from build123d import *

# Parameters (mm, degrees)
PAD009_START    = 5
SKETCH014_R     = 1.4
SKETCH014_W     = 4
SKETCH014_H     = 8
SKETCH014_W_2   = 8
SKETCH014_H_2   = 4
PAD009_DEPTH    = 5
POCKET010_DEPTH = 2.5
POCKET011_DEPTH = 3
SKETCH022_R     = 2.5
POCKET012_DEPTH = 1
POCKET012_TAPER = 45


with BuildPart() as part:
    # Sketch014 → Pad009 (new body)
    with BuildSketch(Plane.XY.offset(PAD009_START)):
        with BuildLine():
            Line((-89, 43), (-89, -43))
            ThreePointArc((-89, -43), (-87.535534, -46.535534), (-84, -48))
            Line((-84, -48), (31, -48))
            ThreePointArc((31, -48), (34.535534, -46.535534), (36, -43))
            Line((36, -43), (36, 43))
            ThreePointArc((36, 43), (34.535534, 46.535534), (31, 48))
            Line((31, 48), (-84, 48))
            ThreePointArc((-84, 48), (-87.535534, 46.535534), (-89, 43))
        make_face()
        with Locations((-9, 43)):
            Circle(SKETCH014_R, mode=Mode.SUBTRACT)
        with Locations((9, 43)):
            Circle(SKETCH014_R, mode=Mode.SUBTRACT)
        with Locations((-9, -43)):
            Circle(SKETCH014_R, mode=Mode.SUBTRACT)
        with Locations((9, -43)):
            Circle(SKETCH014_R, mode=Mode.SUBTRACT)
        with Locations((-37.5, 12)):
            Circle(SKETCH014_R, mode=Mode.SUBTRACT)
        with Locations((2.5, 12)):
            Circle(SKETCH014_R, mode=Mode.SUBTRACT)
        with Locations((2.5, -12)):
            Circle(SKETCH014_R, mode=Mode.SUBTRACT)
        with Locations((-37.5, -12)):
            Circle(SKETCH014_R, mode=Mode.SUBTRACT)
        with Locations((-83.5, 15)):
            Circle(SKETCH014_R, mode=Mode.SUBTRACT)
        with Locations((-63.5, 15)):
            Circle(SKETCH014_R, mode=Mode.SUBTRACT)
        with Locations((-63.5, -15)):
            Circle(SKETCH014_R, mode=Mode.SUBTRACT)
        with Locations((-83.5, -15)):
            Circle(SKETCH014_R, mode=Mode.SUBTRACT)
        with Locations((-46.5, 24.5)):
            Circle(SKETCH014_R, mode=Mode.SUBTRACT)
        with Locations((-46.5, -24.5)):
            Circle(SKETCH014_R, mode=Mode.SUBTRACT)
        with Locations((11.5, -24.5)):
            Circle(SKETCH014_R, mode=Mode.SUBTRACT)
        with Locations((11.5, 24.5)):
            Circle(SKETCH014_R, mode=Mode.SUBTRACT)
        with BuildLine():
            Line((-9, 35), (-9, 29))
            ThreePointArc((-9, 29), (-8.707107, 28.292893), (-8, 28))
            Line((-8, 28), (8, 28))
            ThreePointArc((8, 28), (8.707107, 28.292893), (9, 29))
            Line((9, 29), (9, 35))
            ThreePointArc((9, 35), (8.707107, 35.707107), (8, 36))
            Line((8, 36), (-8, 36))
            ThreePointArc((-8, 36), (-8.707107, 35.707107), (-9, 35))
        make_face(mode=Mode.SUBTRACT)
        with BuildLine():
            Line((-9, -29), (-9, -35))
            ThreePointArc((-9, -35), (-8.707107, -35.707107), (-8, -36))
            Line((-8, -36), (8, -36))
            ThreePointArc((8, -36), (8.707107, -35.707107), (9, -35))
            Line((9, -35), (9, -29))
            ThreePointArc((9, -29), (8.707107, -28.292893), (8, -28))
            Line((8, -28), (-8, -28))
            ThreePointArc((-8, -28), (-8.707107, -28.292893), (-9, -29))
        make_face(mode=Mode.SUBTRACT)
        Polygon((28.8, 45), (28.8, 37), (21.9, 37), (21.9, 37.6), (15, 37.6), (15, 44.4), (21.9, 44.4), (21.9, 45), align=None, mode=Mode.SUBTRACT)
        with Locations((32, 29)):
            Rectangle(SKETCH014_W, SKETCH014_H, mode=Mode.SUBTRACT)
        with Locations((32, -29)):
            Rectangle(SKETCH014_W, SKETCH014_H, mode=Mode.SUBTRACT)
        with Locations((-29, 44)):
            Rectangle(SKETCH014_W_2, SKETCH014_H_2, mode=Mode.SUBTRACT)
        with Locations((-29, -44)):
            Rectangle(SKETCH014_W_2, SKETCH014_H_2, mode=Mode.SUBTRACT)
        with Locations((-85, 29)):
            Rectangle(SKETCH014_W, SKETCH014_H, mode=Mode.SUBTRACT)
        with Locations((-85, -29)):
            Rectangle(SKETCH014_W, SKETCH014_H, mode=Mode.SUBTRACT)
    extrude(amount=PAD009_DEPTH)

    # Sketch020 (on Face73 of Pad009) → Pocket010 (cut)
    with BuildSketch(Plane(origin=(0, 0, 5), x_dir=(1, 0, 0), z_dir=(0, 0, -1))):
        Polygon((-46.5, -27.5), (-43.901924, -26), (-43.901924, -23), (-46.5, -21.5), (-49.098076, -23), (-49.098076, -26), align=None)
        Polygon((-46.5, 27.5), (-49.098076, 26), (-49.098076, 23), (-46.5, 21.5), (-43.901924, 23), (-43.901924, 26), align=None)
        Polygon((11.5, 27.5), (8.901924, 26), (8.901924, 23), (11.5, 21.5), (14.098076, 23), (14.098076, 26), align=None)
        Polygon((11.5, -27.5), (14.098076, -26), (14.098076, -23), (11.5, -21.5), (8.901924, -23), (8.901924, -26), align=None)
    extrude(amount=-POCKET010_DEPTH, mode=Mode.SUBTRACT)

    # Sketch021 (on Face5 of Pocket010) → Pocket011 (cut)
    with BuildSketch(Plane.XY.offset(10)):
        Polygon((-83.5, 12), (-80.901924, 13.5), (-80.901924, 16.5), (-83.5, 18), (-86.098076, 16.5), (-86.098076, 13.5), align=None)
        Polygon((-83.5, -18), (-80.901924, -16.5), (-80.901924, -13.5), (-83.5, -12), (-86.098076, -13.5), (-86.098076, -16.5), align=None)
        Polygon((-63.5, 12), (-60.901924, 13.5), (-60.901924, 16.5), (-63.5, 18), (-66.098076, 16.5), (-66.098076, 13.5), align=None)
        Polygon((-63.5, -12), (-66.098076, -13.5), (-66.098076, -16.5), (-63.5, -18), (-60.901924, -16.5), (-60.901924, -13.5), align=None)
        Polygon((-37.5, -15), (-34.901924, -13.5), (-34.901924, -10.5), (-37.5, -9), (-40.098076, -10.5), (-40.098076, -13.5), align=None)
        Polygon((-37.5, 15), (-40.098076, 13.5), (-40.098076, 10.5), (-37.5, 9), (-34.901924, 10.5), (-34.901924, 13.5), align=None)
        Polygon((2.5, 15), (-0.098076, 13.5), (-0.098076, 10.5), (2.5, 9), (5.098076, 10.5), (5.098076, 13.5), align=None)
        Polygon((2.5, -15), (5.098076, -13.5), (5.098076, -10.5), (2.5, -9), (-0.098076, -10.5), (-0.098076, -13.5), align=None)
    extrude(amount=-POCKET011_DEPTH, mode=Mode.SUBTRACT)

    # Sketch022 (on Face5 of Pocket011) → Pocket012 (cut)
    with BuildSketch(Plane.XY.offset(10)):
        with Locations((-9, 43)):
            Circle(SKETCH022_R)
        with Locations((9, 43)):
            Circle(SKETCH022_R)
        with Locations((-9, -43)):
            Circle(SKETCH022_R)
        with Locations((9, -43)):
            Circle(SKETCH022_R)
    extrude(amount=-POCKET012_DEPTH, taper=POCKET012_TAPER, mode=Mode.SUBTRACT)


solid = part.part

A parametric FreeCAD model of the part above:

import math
import FreeCAD as App
import Part
import Sketcher
Q = App.Units.Quantity


def add_polygon(sketch, points):
    """Adds a closed chain of lines whose ends are joined by coincident constraints."""
    first, n = sketch.GeometryCount, len(points)
    for a, b in zip(points, points[1:] + points[:1]):
        sketch.addGeometry(Part.LineSegment(App.Vector(*a, 0), App.Vector(*b, 0)), False)
    for i in range(n):
        sketch.addConstraint(Sketcher.Constraint("Coincident", first + i, 2, first + (i + 1) % n, 1))

doc = App.newDocument("Part")
params = doc.addObject("Spreadsheet::Sheet", "Params")
for row, (alias, value) in enumerate([
    ("sketch1_radius", "5 mm"),
    ("sketch1_radius2", "0.999999 mm"),
    ("sketch1_diameter", "2.8 mm"),
    ("sketch1_width", "115 mm"),
    ("sketch1_width2", "4 mm"),
    ("pad1_length", "5 mm"),
    ("sketch2_height", "3 mm"),
    ("sketch2_length", "3 mm"),
    ("pocket1_length", "2.5 mm"),
    ("sketch3_height", "3 mm"),
    ("sketch3_length", "3 mm"),
    ("pocket2_length", "3 mm"),
    ("sketch4_diameter", "5 mm"),
    ("pocket3_length", "1 mm"),
    ("pocket3_taper", "-45 deg"),
], start=1):
    params.set(f"A{row}", alias)
    params.set(f"B{row}", "=" + value)
    params.setAlias(f"B{row}", alias)

body = doc.addObject("PartDesign::Body", "Body")

# Sketch on XY plane
sketch1 = body.newObject("Sketcher::SketchObject", "Sketch")
sketch1.AttachmentSupport = (doc.getObject("XY_Plane"), [""])
sketch1.MapMode = "FlatFace"
sketch1.AttachmentOffset = App.Placement(App.Vector(0, 0, 5), App.Rotation())
sketch1.addGeometry(Part.LineSegment(App.Vector(-89, 43, 0), App.Vector(-89, -43, 0)), False)  # 0
sketch1.addGeometry(Part.ArcOfCircle(Part.Circle(App.Vector(-84, -43, 0), App.Vector(0, 0, 1), 5), math.radians(180), math.radians(270)), False)  # 1
sketch1.addGeometry(Part.LineSegment(App.Vector(-84, -48, 0), App.Vector(31, -48, 0)), False)  # 2
sketch1.addGeometry(Part.ArcOfCircle(Part.Circle(App.Vector(31, -43, 0), App.Vector(0, 0, 1), 5), math.radians(-90), math.radians(0)), False)  # 3
sketch1.addGeometry(Part.LineSegment(App.Vector(36, -43, 0), App.Vector(36, 43, 0)), False)  # 4
sketch1.addGeometry(Part.ArcOfCircle(Part.Circle(App.Vector(31, 43, 0), App.Vector(0, 0, 1), 5), math.radians(0), math.radians(90)), False)  # 5
sketch1.addGeometry(Part.LineSegment(App.Vector(31, 48, 0), App.Vector(-84, 48, 0)), False)  # 6
sketch1.addGeometry(Part.ArcOfCircle(Part.Circle(App.Vector(-84, 43, 0), App.Vector(0, 0, 1), 5), math.radians(90), math.radians(180)), False)  # 7
add_polygon(sketch1, [(-83, -33), (-87, -33), (-87, -25), (-83, -25)])  # lines 8-11
add_polygon(sketch1, [(-25, -46), (-33, -46), (-33, -42), (-25, -42)])  # lines 12-15
sketch1.addGeometry(Part.Circle(App.Vector(-46.5, -24.5, 0), App.Vector(0, 0, 1), 1.4), False)  # 16
sketch1.addGeometry(Part.Circle(App.Vector(-83.5, -15, 0), App.Vector(0, 0, 1), 1.4), False)  # 17
sketch1.addGeometry(Part.Circle(App.Vector(-63.5, -15, 0), App.Vector(0, 0, 1), 1.4), False)  # 18
sketch1.addGeometry(Part.Circle(App.Vector(-37.5, -12, 0), App.Vector(0, 0, 1), 1.4), False)  # 19
sketch1.addGeometry(Part.Circle(App.Vector(-9, -43, 0), App.Vector(0, 0, 1), 1.4), False)  # 20
sketch1.addGeometry(Part.LineSegment(App.Vector(-9, -35, 0), App.Vector(-9, -29, 0)), False)  # 21
sketch1.addGeometry(Part.ArcOfCircle(Part.Circle(App.Vector(-8, -29, 0), App.Vector(0, 0, 1), 1), math.radians(90), math.radians(180)), False)  # 22
sketch1.addGeometry(Part.LineSegment(App.Vector(-8, -28, 0), App.Vector(8, -28, 0)), False)  # 23
sketch1.addGeometry(Part.ArcOfCircle(Part.Circle(App.Vector(8, -29, 0), App.Vector(0, 0, 1), 1), math.radians(0), math.radians(90)), False)  # 24
sketch1.addGeometry(Part.LineSegment(App.Vector(9, -29, 0), App.Vector(9, -35, 0)), False)  # 25
sketch1.addGeometry(Part.ArcOfCircle(Part.Circle(App.Vector(8, -35, 0), App.Vector(0, 0, 1), 1), math.radians(-90), math.radians(0)), False)  # 26
sketch1.addGeometry(Part.LineSegment(App.Vector(8, -36, 0), App.Vector(-8, -36, 0)), False)  # 27
sketch1.addGeometry(Part.ArcOfCircle(Part.Circle(App.Vector(-8, -35, 0), App.Vector(0, 0, 1), 1), math.radians(180), math.radians(270)), False)  # 28
sketch1.addGeometry(Part.Circle(App.Vector(9, -43, 0), App.Vector(0, 0, 1), 1.4), False)  # 29
sketch1.addGeometry(Part.Circle(App.Vector(11.5, -24.5, 0), App.Vector(0, 0, 1), 1.4), False)  # 30
add_polygon(sketch1, [(34, -33), (30, -33), (30, -25), (34, -25)])  # lines 31-34
sketch1.addGeometry(Part.Circle(App.Vector(2.5, -12, 0), App.Vector(0, 0, 1), 1.4), False)  # 35
sketch1.addGeometry(Part.Circle(App.Vector(-83.5, 15, 0), App.Vector(0, 0, 1), 1.4), False)  # 36
sketch1.addGeometry(Part.Circle(App.Vector(-63.5, 15, 0), App.Vector(0, 0, 1), 1.4), False)  # 37
sketch1.addGeometry(Part.Circle(App.Vector(-37.5, 12, 0), App.Vector(0, 0, 1), 1.4), False)  # 38
add_polygon(sketch1, [(-83, 25), (-87, 25), (-87, 33), (-83, 33)])  # lines 39-42
sketch1.addGeometry(Part.Circle(App.Vector(-46.5, 24.5, 0), App.Vector(0, 0, 1), 1.4), False)  # 43
add_polygon(sketch1, [(-25, 42), (-33, 42), (-33, 46), (-25, 46)])  # lines 44-47
sketch1.addGeometry(Part.Circle(App.Vector(2.5, 12, 0), App.Vector(0, 0, 1), 1.4), False)  # 48
sketch1.addGeometry(Part.LineSegment(App.Vector(-9, 29, 0), App.Vector(-9, 35, 0)), False)  # 49
sketch1.addGeometry(Part.ArcOfCircle(Part.Circle(App.Vector(-8, 35, 0), App.Vector(0, 0, 1), 1), math.radians(90), math.radians(180)), False)  # 50
sketch1.addGeometry(Part.LineSegment(App.Vector(-8, 36, 0), App.Vector(8, 36, 0)), False)  # 51
sketch1.addGeometry(Part.ArcOfCircle(Part.Circle(App.Vector(8, 35, 0), App.Vector(0, 0, 1), 1), math.radians(0), math.radians(90)), False)  # 52
sketch1.addGeometry(Part.LineSegment(App.Vector(9, 35, 0), App.Vector(9, 29, 0)), False)  # 53
sketch1.addGeometry(Part.ArcOfCircle(Part.Circle(App.Vector(8, 29, 0), App.Vector(0, 0, 1), 1), math.radians(-90), math.radians(0)), False)  # 54
sketch1.addGeometry(Part.LineSegment(App.Vector(8, 28, 0), App.Vector(-8, 28, 0)), False)  # 55
sketch1.addGeometry(Part.ArcOfCircle(Part.Circle(App.Vector(-8, 29, 0), App.Vector(0, 0, 1), 1), math.radians(180), math.radians(270)), False)  # 56
sketch1.addGeometry(Part.Circle(App.Vector(-9, 43, 0), App.Vector(0, 0, 1), 1.4), False)  # 57
sketch1.addGeometry(Part.Circle(App.Vector(11.5, 24.5, 0), App.Vector(0, 0, 1), 1.4), False)  # 58
add_polygon(sketch1, [(34, 25), (30, 25), (30, 33), (34, 33)])  # lines 59-62
sketch1.addGeometry(Part.Circle(App.Vector(9, 43, 0), App.Vector(0, 0, 1), 1.4), False)  # 63
add_polygon(sketch1, [(21.9, 45), (28.8, 45), (28.8, 37), (21.9, 37), (21.9, 37.6), (15, 37.6), (15, 44.4), (21.9, 44.4)])  # lines 64-71
sketch1.addConstraint([
    Sketcher.Constraint("Tangent", 0, 2, 1, 1),
    Sketcher.Constraint("Tangent", 1, 2, 2, 1),
    Sketcher.Constraint("Tangent", 2, 2, 3, 1),
    Sketcher.Constraint("Tangent", 3, 2, 4, 1),
    Sketcher.Constraint("Tangent", 4, 2, 5, 1),
    Sketcher.Constraint("Tangent", 5, 2, 6, 1),
    Sketcher.Constraint("Tangent", 6, 2, 7, 1),
    Sketcher.Constraint("Tangent", 7, 2, 0, 1),
    Sketcher.Constraint("Tangent", 21, 2, 22, 2),
    Sketcher.Constraint("Tangent", 22, 1, 23, 1),
    Sketcher.Constraint("Tangent", 23, 2, 24, 2),
    Sketcher.Constraint("Tangent", 24, 1, 25, 1),
    Sketcher.Constraint("Tangent", 25, 2, 26, 2),
    Sketcher.Constraint("Tangent", 26, 1, 27, 1),
    Sketcher.Constraint("Tangent", 27, 2, 28, 2),
    Sketcher.Constraint("Tangent", 28, 1, 21, 1),
    Sketcher.Constraint("Tangent", 49, 2, 50, 2),
    Sketcher.Constraint("Tangent", 50, 1, 51, 1),
    Sketcher.Constraint("Tangent", 51, 2, 52, 2),
    Sketcher.Constraint("Tangent", 52, 1, 53, 1),
    Sketcher.Constraint("Tangent", 53, 2, 54, 2),
    Sketcher.Constraint("Tangent", 54, 1, 55, 1),
    Sketcher.Constraint("Tangent", 55, 2, 56, 2),
    Sketcher.Constraint("Tangent", 56, 1, 49, 1),
    Sketcher.Constraint("Vertical", 0),
    Sketcher.Constraint("Horizontal", 2),
    Sketcher.Constraint("Vertical", 4),
    Sketcher.Constraint("Horizontal", 6),
    Sketcher.Constraint("Horizontal", 8),
    Sketcher.Constraint("Vertical", 9),
    Sketcher.Constraint("Horizontal", 10),
    Sketcher.Constraint("Vertical", 11),
    Sketcher.Constraint("Horizontal", 12),
    Sketcher.Constraint("Vertical", 13),
    Sketcher.Constraint("Horizontal", 14),
    Sketcher.Constraint("Vertical", 15),
    Sketcher.Constraint("Vertical", 21),
    Sketcher.Constraint("Horizontal", 23),
    Sketcher.Constraint("Vertical", 25),
    Sketcher.Constraint("Horizontal", 27),
    Sketcher.Constraint("Horizontal", 31),
    Sketcher.Constraint("Vertical", 32),
    Sketcher.Constraint("Horizontal", 33),
    Sketcher.Constraint("Vertical", 34),
    Sketcher.Constraint("Horizontal", 39),
    Sketcher.Constraint("Vertical", 40),
    Sketcher.Constraint("Horizontal", 41),
    Sketcher.Constraint("Vertical", 42),
    Sketcher.Constraint("Horizontal", 44),
    Sketcher.Constraint("Vertical", 45),
    Sketcher.Constraint("Horizontal", 46),
    Sketcher.Constraint("Vertical", 47),
    Sketcher.Constraint("Vertical", 49),
    Sketcher.Constraint("Horizontal", 51),
    Sketcher.Constraint("Vertical", 53),
    Sketcher.Constraint("Horizontal", 55),
    Sketcher.Constraint("Horizontal", 59),
    Sketcher.Constraint("Vertical", 60),
    Sketcher.Constraint("Horizontal", 61),
    Sketcher.Constraint("Vertical", 62),
    Sketcher.Constraint("Horizontal", 64),
    Sketcher.Constraint("Vertical", 65),
    Sketcher.Constraint("Horizontal", 66),
    Sketcher.Constraint("Vertical", 67),
    Sketcher.Constraint("Horizontal", 68),
    Sketcher.Constraint("Vertical", 69),
    Sketcher.Constraint("Horizontal", 70),
    Sketcher.Constraint("Vertical", 71),
    Sketcher.Constraint("Equal", 1, 3),
    Sketcher.Constraint("Equal", 3, 5),
    Sketcher.Constraint("Equal", 5, 7),
    Sketcher.Constraint("Equal", 16, 17),
    Sketcher.Constraint("Equal", 17, 18),
    Sketcher.Constraint("Equal", 18, 19),
    Sketcher.Constraint("Equal", 19, 20),
    Sketcher.Constraint("Equal", 22, 24),
    Sketcher.Constraint("Equal", 24, 26),
    Sketcher.Constraint("Equal", 26, 28),
    Sketcher.Constraint("Equal", 20, 29),
    Sketcher.Constraint("Equal", 29, 30),
    Sketcher.Constraint("Equal", 30, 35),
    Sketcher.Constraint("Equal", 35, 36),
    Sketcher.Constraint("Equal", 36, 37),
    Sketcher.Constraint("Equal", 37, 38),
    Sketcher.Constraint("Equal", 38, 43),
    Sketcher.Constraint("Equal", 43, 48),
    Sketcher.Constraint("Equal", 28, 50),
    Sketcher.Constraint("Equal", 50, 52),
    Sketcher.Constraint("Equal", 52, 54),
    Sketcher.Constraint("Equal", 54, 56),
    Sketcher.Constraint("Equal", 48, 57),
    Sketcher.Constraint("Equal", 57, 58),
    Sketcher.Constraint("Equal", 58, 63),
    Sketcher.Constraint("Symmetric", 26, 3, 50, 3, -1, 1),
    Sketcher.Constraint("Symmetric", 22, 3, 54, 3, -1, 1),
    Sketcher.Constraint("Symmetric", 29, 3, 57, 3, -1, 1),
    Sketcher.Constraint("Symmetric", 20, 3, 63, 3, -1, 1),
    Sketcher.Constraint("Symmetric", 20, 3, 29, 3, -2),
    Sketcher.Constraint("Symmetric", 17, 3, 36, 3, -1),
    Sketcher.Constraint("Symmetric", 18, 3, 37, 3, -1),
    Sketcher.Constraint("Symmetric", 19, 3, 38, 3, -1),
    Sketcher.Constraint("Symmetric", 16, 3, 43, 3, -1),
    Sketcher.Constraint("Symmetric", 35, 3, 48, 3, -1),
    Sketcher.Constraint("Symmetric", 30, 3, 58, 3, -1),
    Sketcher.Constraint("Symmetric", 9, 2, 39, 2, -1),
    Sketcher.Constraint("Symmetric", 11, 2, 41, 2, -1),
    Sketcher.Constraint("Symmetric", 13, 2, 44, 2, -1),
    Sketcher.Constraint("Symmetric", 15, 2, 46, 2, -1),
    Sketcher.Constraint("Symmetric", 32, 2, 59, 2, -1),
    Sketcher.Constraint("Symmetric", 34, 2, 61, 2, -1),
    Sketcher.Constraint("Horizontal", 17, 3, 18, 3),
    Sketcher.Constraint("Horizontal", 3, 3, 20, 3),
    Sketcher.Constraint("Horizontal", 16, 3, 30, 3),
    Sketcher.Constraint("Horizontal", 19, 3, 35, 3),
    Sketcher.Constraint("Horizontal", 7, 3, 57, 3),
    Sketcher.Constraint("Horizontal", 11, 2, 31, 2),
    Sketcher.Constraint("Horizontal", 10, 2, 32, 2),
    Sketcher.Constraint("Vertical", 28, 3, 50, 3),
    Sketcher.Constraint("Vertical", 57, 3, 21, 2),
    Sketcher.Constraint("Vertical", 67, 2, 70, 2),
    Sketcher.Constraint("Equal", 10, 31),
    Sketcher.Constraint("Equal", 66, 68),
    Sketcher.Constraint("Equal", 46, 9),
    Sketcher.Constraint("Equal", 61, 13),
    Sketcher.Constraint("Equal", 62, 65),
    Sketcher.Constraint("Equal", 67, 71),
    Sketcher.Constraint("Radius", 1, Q("5 mm")),
    Sketcher.Constraint("Radius", 22, Q("0.999999 mm")),
    Sketcher.Constraint("Diameter", 16, Q("2.8 mm")),
    Sketcher.Constraint("DistanceX", 2, 1, 2, 2, Q("115 mm")),
    Sketcher.Constraint("DistanceX", 8, 2, 8, 1, Q("4 mm")),
    Sketcher.Constraint("DistanceX", 12, 2, 12, 1, Q("8 mm")),
    Sketcher.Constraint("DistanceX", 23, 1, 23, 2, Q("16 mm")),
    Sketcher.Constraint("DistanceY", 0, 2, 0, 1, Q("86 mm")),
    Sketcher.Constraint("DistanceY", 21, 1, 21, 2, Q("6 mm")),
    Sketcher.Constraint("DistanceX", 64, 1, 64, 2, Q("6.9 mm")),
    Sketcher.Constraint("DistanceY", 67, 1, 67, 2, Q("0.6 mm")),
    Sketcher.Constraint("DistanceX", 1, 3, -1, 1, Q("84 mm")),
    Sketcher.Constraint("DistanceY", 17, 3, -1, 1, Q("15 mm")),
    Sketcher.Constraint("DistanceY", 19, 3, -1, 1, Q("12 mm")),
    Sketcher.Constraint("DistanceY", 22, 3, -1, 1, Q("28.999999 mm")),
    Sketcher.Constraint("DistanceX", 8, 2, -1, 1, Q("87 mm")),
    Sketcher.Constraint("DistanceY", 8, 2, -1, 1, Q("33 mm")),
    Sketcher.Constraint("DistanceX", 12, 2, -1, 1, Q("33 mm")),
    Sketcher.Constraint("DistanceY", 12, 2, -1, 1, Q("46 mm")),
    Sketcher.Constraint("DistanceX", -1, 1, 31, 2, Q("30 mm")),
    Sketcher.Constraint("DistanceY", -1, 1, 64, 2, Q("45 mm")),
    Sketcher.Constraint("DistanceX", -1, 1, 68, 2, Q("15 mm")),
    Sketcher.Constraint("DistanceX", 16, 3, -1, 1, Q("46.5 mm")),
    Sketcher.Constraint("DistanceY", 16, 3, -1, 1, Q("24.5 mm")),
    Sketcher.Constraint("DistanceX", 17, 3, -1, 1, Q("83.5 mm")),
    Sketcher.Constraint("DistanceX", 18, 3, -1, 1, Q("63.5 mm")),
    Sketcher.Constraint("DistanceX", 19, 3, -1, 1, Q("37.5 mm")),
    Sketcher.Constraint("DistanceX", -1, 1, 30, 3, Q("11.5 mm")),
    Sketcher.Constraint("DistanceX", -1, 1, 35, 3, Q("2.5 mm")),
])
sketch1.setExpression("Constraints[158]", "Params.sketch1_radius")
sketch1.setExpression("Constraints[159]", "Params.sketch1_radius2")
sketch1.setExpression("Constraints[160]", "Params.sketch1_diameter")
sketch1.setExpression("Constraints[161]", "Params.sketch1_width")
sketch1.setExpression("Constraints[162]", "Params.sketch1_width2")
pad1 = body.newObject("PartDesign::Pad", "Pad")
pad1.Profile = sketch1
pad1.setExpression("Length", "Params.pad1_length")

# Sketch on XY plane
sketch2 = body.newObject("Sketcher::SketchObject", "Sketch001")
sketch2.AttachmentSupport = (doc.getObject("XY_Plane"), [""])
sketch2.MapMode = "FlatFace"
sketch2.AttachmentOffset = App.Placement(App.Vector(0, 0, 5), App.Rotation())
add_polygon(sketch2, [(-46.5, 27.5), (-43.9, 26), (-43.9, 23), (-46.5, 21.5), (-49.1, 23), (-49.1, 26)])  # lines 0-5
add_polygon(sketch2, [(-46.5, -27.5), (-49.1, -26), (-49.1, -23), (-46.5, -21.5), (-43.9, -23), (-43.9, -26)])  # lines 6-11
add_polygon(sketch2, [(11.5, -27.5), (8.9, -26), (8.9, -23), (11.5, -21.5), (14.1, -23), (14.1, -26)])  # lines 12-17
add_polygon(sketch2, [(11.5, 27.5), (14.1, 26), (14.1, 23), (11.5, 21.5), (8.9, 23), (8.9, 26)])  # lines 18-23
sketch2.addConstraint([
    Sketcher.Constraint("Vertical", 1),
    Sketcher.Constraint("Vertical", 4),
    Sketcher.Constraint("Vertical", 7),
    Sketcher.Constraint("Vertical", 10),
    Sketcher.Constraint("Vertical", 13),
    Sketcher.Constraint("Vertical", 16),
    Sketcher.Constraint("Vertical", 19),
    Sketcher.Constraint("Vertical", 22),
    Sketcher.Constraint("Symmetric", 4, 2, 6, 2, -1),
    Sketcher.Constraint("Symmetric", 2, 2, 8, 2, -1),
    Sketcher.Constraint("Symmetric", 1, 2, 9, 2, -1),
    Sketcher.Constraint("Symmetric", 5, 2, 11, 2, -1),
    Sketcher.Constraint("Symmetric", 16, 2, 18, 2, -1),
    Sketcher.Constraint("Symmetric", 14, 2, 20, 2, -1),
    Sketcher.Constraint("Symmetric", 13, 2, 21, 2, -1),
    Sketcher.Constraint("Symmetric", 17, 2, 23, 2, -1),
    Sketcher.Constraint("Parallel", 0, 3),
    Sketcher.Constraint("Parallel", 2, 5),
    Sketcher.Constraint("Parallel", 3, 6),
    Sketcher.Constraint("Parallel", 5, 8),
    Sketcher.Constraint("Parallel", 8, 11),
    Sketcher.Constraint("Parallel", 9, 12),
    Sketcher.Constraint("Parallel", 11, 14),
    Sketcher.Constraint("Parallel", 12, 15),
    Sketcher.Constraint("Parallel", 14, 17),
    Sketcher.Constraint("Parallel", 17, 20),
    Sketcher.Constraint("Parallel", 20, 23),
    Sketcher.Constraint("Horizontal", 1, 2, 3, 2),
    Sketcher.Constraint("Horizontal", 0, 2, 4, 2),
    Sketcher.Constraint("Horizontal", 10, 2, 12, 2),
    Sketcher.Constraint("Horizontal", 9, 2, 13, 2),
    Sketcher.Constraint("Horizontal", 8, 2, 14, 2),
    Sketcher.Constraint("Horizontal", 13, 2, 15, 2),
    Sketcher.Constraint("Horizontal", 12, 2, 16, 2),
    Sketcher.Constraint("DistanceY", 1, 2, 1, 1, Q("3 mm")),
    Sketcher.Constraint("Angle", 0, Q("-30.000002 deg")),
    Sketcher.Constraint("Distance", 0, Q("3 mm")),
    Sketcher.Constraint("DistanceY", -1, 1, 0, 2, Q("26 mm")),
    Sketcher.Constraint("DistanceX", 6, 2, 12, 2, Q("58 mm")),
    Sketcher.Constraint("DistanceX", 2, 2, -1, 1, Q("46.5 mm")),
])
sketch2.setExpression("Constraints[58]", "Params.sketch2_height")
sketch2.setExpression("Constraints[60]", "Params.sketch2_length")
pocket1 = body.newObject("PartDesign::Pocket", "Pocket")
pocket1.Profile = sketch2
pocket1.setExpression("Length", "Params.pocket1_length")
pocket1.Reversed = True

# Sketch on XY plane
sketch3 = body.newObject("Sketcher::SketchObject", "Sketch002")
sketch3.AttachmentSupport = (doc.getObject("XY_Plane"), [""])
sketch3.MapMode = "FlatFace"
sketch3.AttachmentOffset = App.Placement(App.Vector(0, 0, 10), App.Rotation())
add_polygon(sketch3, [(-83.5, 12), (-80.9, 13.5), (-80.9, 16.5), (-83.5, 18), (-86.1, 16.5), (-86.1, 13.5)])  # lines 0-5
add_polygon(sketch3, [(-83.5, -18), (-80.9, -16.5), (-80.9, -13.5), (-83.5, -12), (-86.1, -13.5), (-86.1, -16.5)])  # lines 6-11
add_polygon(sketch3, [(-63.5, 12), (-60.9, 13.5), (-60.9, 16.5), (-63.5, 18), (-66.1, 16.5), (-66.1, 13.5)])  # lines 12-17
add_polygon(sketch3, [(-63.5, -12), (-66.1, -13.5), (-66.1, -16.5), (-63.5, -18), (-60.9, -16.5), (-60.9, -13.5)])  # lines 18-23
add_polygon(sketch3, [(-37.5, -15), (-34.9, -13.5), (-34.9, -10.5), (-37.5, -9), (-40.1, -10.5), (-40.1, -13.5)])  # lines 24-29
add_polygon(sketch3, [(-37.5, 15), (-40.1, 13.5), (-40.1, 10.5), (-37.5, 9), (-34.9, 10.5), (-34.9, 13.5)])  # lines 30-35
add_polygon(sketch3, [(2.5, 15), (-0.1, 13.5), (-0.1, 10.5), (2.5, 9), (5.1, 10.5), (5.1, 13.5)])  # lines 36-41
add_polygon(sketch3, [(2.5, -15), (5.1, -13.5), (5.1, -10.5), (2.5, -9), (-0.1, -10.5), (-0.1, -13.5)])  # lines 42-47
sketch3.addConstraint([
    Sketcher.Constraint("Vertical", 1),
    Sketcher.Constraint("Vertical", 4),
    Sketcher.Constraint("Vertical", 7),
    Sketcher.Constraint("Vertical", 10),
    Sketcher.Constraint("Vertical", 13),
    Sketcher.Constraint("Vertical", 16),
    Sketcher.Constraint("Vertical", 19),
    Sketcher.Constraint("Vertical", 22),
    Sketcher.Constraint("Vertical", 25),
    Sketcher.Constraint("Vertical", 28),
    Sketcher.Constraint("Vertical", 31),
    Sketcher.Constraint("Vertical", 34),
    Sketcher.Constraint("Vertical", 37),
    Sketcher.Constraint("Vertical", 40),
    Sketcher.Constraint("Vertical", 43),
    Sketcher.Constraint("Vertical", 46),
    Sketcher.Constraint("Symmetric", 1, 2, 6, 2, -1),
    Sketcher.Constraint("Symmetric", 5, 2, 8, 2, -1),
    Sketcher.Constraint("Symmetric", 4, 2, 9, 2, -1),
    Sketcher.Constraint("Symmetric", 2, 2, 11, 2, -1),
    Sketcher.Constraint("Symmetric", 16, 2, 18, 2, -1),
    Sketcher.Constraint("Symmetric", 14, 2, 20, 2, -1),
    Sketcher.Constraint("Symmetric", 13, 2, 21, 2, -1),
    Sketcher.Constraint("Symmetric", 17, 2, 23, 2, -1),
    Sketcher.Constraint("Symmetric", 28, 2, 30, 2, -1),
    Sketcher.Constraint("Symmetric", 26, 2, 32, 2, -1),
    Sketcher.Constraint("Symmetric", 25, 2, 33, 2, -1),
    Sketcher.Constraint("Symmetric", 29, 2, 35, 2, -1),
    Sketcher.Constraint("Symmetric", 40, 2, 42, 2, -1),
    Sketcher.Constraint("Symmetric", 38, 2, 44, 2, -1),
    Sketcher.Constraint("Symmetric", 37, 2, 45, 2, -1),
    Sketcher.Constraint("Symmetric", 41, 2, 47, 2, -1),
    Sketcher.Constraint("Parallel", 0, 3),
    Sketcher.Constraint("Parallel", 2, 5),
    Sketcher.Constraint("Parallel", 3, 6),
    Sketcher.Constraint("Parallel", 5, 8),
    Sketcher.Constraint("Parallel", 8, 11),
    Sketcher.Constraint("Parallel", 9, 12),
    Sketcher.Constraint("Parallel", 11, 14),
    Sketcher.Constraint("Parallel", 12, 15),
    Sketcher.Constraint("Parallel", 14, 17),
    Sketcher.Constraint("Parallel", 17, 20),
    Sketcher.Constraint("Parallel", 20, 23),
    Sketcher.Constraint("Parallel", 21, 24),
    Sketcher.Constraint("Parallel", 23, 26),
    Sketcher.Constraint("Parallel", 24, 27),
    Sketcher.Constraint("Parallel", 26, 29),
    Sketcher.Constraint("Parallel", 29, 32),
    Sketcher.Constraint("Parallel", 32, 35),
    Sketcher.Constraint("Parallel", 33, 36),
    Sketcher.Constraint("Parallel", 35, 38),
    Sketcher.Constraint("Parallel", 36, 39),
    Sketcher.Constraint("Parallel", 38, 41),
    Sketcher.Constraint("Parallel", 41, 44),
    Sketcher.Constraint("Parallel", 44, 47),
    Sketcher.Constraint("Horizontal", 1, 2, 3, 2),
    Sketcher.Constraint("Horizontal", 0, 2, 4, 2),
    Sketcher.Constraint("Horizontal", 4, 2, 12, 2),
    Sketcher.Constraint("Horizontal", 3, 2, 13, 2),
    Sketcher.Constraint("Horizontal", 2, 2, 14, 2),
    Sketcher.Constraint("Horizontal", 13, 2, 15, 2),
    Sketcher.Constraint("Horizontal", 12, 2, 16, 2),
    Sketcher.Constraint("Horizontal", 22, 2, 24, 2),
    Sketcher.Constraint("Horizontal", 25, 2, 27, 2),
    Sketcher.Constraint("Horizontal", 24, 2, 28, 2),
    Sketcher.Constraint("Horizontal", 34, 2, 36, 2),
    Sketcher.Constraint("Horizontal", 33, 2, 37, 2),
    Sketcher.Constraint("Horizontal", 32, 2, 38, 2),
    Sketcher.Constraint("Horizontal", 37, 2, 39, 2),
    Sketcher.Constraint("Horizontal", 36, 2, 40, 2),
    Sketcher.Constraint("Equal", 22, 25),
    Sketcher.Constraint("Equal", 23, 24),
    Sketcher.Constraint("DistanceY", 1, 1, 1, 2, Q("3 mm")),
    Sketcher.Constraint("Angle", 0, Q("30.000002 deg")),
    Sketcher.Constraint("Distance", 0, Q("3 mm")),
    Sketcher.Constraint("DistanceY", -1, 1, 2, 2, Q("18 mm")),
    Sketcher.Constraint("DistanceX", 0, 2, 12, 2, Q("20 mm")),
    Sketcher.Constraint("DistanceX", 22, 2, 24, 2, Q("26 mm")),
    Sketcher.Constraint("DistanceX", 30, 2, 36, 2, Q("40 mm")),
    Sketcher.Constraint("DistanceX", 2, 2, -1, 1, Q("83.5 mm")),
])
sketch3.setExpression("Constraints[120]", "Params.sketch3_height")
sketch3.setExpression("Constraints[122]", "Params.sketch3_length")
pocket2 = body.newObject("PartDesign::Pocket", "Pocket001")
pocket2.Profile = sketch3
pocket2.setExpression("Length", "Params.pocket2_length")

# Sketch on XY plane
sketch4 = body.newObject("Sketcher::SketchObject", "Sketch003")
sketch4.AttachmentSupport = (doc.getObject("XY_Plane"), [""])
sketch4.MapMode = "FlatFace"
sketch4.AttachmentOffset = App.Placement(App.Vector(0, 0, 10), App.Rotation())
sketch4.addGeometry([
    Part.Circle(App.Vector(-9, 43, 0), App.Vector(0, 0, 1), 2.5),
    Part.Circle(App.Vector(9, 43, 0), App.Vector(0, 0, 1), 2.5),
    Part.Circle(App.Vector(-9, -43, 0), App.Vector(0, 0, 1), 2.5),
    Part.Circle(App.Vector(9, -43, 0), App.Vector(0, 0, 1), 2.5),
], False)
sketch4.addConstraint([
    Sketcher.Constraint("Equal", 0, 1),
    Sketcher.Constraint("Equal", 1, 2),
    Sketcher.Constraint("Equal", 2, 3),
    Sketcher.Constraint("Symmetric", 1, 3, 2, 3, -1, 1),
    Sketcher.Constraint("Symmetric", 0, 3, 3, 3, -1, 1),
    Sketcher.Constraint("Symmetric", 0, 3, 1, 3, -2),
    Sketcher.Constraint("Diameter", 0, Q("5 mm")),
    Sketcher.Constraint("DistanceX", 0, 3, -1, 1, Q("9 mm")),
    Sketcher.Constraint("DistanceY", -1, 1, 0, 3, Q("43 mm")),
])
sketch4.setExpression("Constraints[6]", "Params.sketch4_diameter")
pocket3 = body.newObject("PartDesign::Pocket", "Pocket002")
pocket3.Profile = sketch4
pocket3.setExpression("Length", "Params.pocket3_length")
pocket3.setExpression("TaperAngle", "Params.pocket3_taper")

doc.recompute()
